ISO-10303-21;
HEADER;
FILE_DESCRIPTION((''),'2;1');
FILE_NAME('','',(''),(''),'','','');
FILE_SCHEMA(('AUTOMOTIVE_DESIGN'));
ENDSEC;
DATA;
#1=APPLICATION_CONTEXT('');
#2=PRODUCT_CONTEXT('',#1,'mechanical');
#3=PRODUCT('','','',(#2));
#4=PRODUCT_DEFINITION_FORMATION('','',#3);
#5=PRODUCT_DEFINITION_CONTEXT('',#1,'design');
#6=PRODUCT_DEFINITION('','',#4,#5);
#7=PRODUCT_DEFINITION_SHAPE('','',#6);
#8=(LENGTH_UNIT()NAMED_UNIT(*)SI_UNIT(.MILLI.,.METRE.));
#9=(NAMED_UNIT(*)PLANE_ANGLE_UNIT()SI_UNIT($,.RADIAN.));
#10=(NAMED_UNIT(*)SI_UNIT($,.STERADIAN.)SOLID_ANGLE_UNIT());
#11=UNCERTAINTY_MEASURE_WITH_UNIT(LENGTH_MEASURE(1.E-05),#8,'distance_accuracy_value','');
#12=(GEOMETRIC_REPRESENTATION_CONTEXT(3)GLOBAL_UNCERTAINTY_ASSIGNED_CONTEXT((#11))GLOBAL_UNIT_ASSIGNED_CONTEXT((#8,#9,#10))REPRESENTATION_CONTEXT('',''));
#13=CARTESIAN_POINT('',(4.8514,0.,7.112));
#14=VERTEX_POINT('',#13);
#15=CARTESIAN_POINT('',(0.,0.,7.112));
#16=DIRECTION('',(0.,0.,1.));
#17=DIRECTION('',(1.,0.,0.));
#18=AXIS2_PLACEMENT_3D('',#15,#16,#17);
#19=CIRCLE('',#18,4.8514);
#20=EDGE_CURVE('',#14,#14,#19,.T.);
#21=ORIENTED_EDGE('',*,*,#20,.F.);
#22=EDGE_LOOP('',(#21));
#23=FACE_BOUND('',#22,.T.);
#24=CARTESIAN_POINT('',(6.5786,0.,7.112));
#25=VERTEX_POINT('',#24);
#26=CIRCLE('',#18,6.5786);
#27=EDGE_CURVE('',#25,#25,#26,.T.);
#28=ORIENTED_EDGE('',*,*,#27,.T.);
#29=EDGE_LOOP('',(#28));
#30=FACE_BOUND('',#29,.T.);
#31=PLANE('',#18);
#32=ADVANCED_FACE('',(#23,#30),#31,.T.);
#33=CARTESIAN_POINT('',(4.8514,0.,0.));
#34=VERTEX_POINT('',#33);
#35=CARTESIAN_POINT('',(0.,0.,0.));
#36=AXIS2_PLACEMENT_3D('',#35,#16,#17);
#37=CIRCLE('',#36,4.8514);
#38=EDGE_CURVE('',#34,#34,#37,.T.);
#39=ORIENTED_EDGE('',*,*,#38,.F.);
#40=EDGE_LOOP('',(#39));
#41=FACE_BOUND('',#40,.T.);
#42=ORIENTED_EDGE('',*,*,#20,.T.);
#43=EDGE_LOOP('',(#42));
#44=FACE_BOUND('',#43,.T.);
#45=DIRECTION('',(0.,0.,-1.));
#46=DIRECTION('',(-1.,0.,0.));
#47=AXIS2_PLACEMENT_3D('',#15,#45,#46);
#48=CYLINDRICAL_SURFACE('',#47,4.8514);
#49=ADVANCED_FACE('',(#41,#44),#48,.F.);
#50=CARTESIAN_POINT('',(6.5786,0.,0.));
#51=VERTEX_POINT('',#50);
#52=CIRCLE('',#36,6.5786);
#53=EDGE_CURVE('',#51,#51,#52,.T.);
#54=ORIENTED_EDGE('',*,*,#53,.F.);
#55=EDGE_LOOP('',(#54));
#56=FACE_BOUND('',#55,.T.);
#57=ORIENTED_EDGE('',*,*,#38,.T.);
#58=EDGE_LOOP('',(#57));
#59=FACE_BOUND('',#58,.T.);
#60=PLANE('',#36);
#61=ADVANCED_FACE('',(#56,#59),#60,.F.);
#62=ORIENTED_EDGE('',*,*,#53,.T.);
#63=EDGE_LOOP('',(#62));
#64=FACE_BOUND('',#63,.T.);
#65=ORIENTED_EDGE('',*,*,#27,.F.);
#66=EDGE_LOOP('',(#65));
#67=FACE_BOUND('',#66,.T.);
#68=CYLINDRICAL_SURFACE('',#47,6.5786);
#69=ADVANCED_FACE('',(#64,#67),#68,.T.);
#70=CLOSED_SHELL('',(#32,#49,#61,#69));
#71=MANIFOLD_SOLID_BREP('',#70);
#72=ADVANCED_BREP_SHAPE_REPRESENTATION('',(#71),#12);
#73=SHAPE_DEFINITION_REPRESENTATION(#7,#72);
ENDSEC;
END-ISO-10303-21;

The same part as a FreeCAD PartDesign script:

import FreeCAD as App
import Part
import Sketcher
Q = App.Units.Quantity

doc = App.newDocument("Part")
body = doc.addObject("PartDesign::Body", "Body")

sketch1 = body.newObject("Sketcher::SketchObject", "Sketch")
sketch1.AttachmentSupport = (doc.getObject("XY_Plane"), [""])
sketch1.MapMode = "FlatFace"
sketch1.addGeometry(Part.Circle(App.Vector(0, 0, 0), App.Vector(0, 0, 1), 6.6), False)
sketch1.addGeometry(Part.Circle(App.Vector(0, 0, 0), App.Vector(0, 0, 1), 4.9), False)
sketch1.addConstraint(Sketcher.Constraint("Coincident", 0, 3, -1, 1))
sketch1.addConstraint(Sketcher.Constraint("Coincident", 1, 3, -1, 1))
sketch1.addConstraint(Sketcher.Constraint("Diameter", 0, Q("0.518 in")))
sketch1.addConstraint(Sketcher.Constraint("Diameter", 1, Q("0.382 in")))
pad1 = body.newObject("PartDesign::Pad", "Pad")
pad1.Profile = sketch1
pad1.Length = Q("0.28 in")

doc.recompute()
